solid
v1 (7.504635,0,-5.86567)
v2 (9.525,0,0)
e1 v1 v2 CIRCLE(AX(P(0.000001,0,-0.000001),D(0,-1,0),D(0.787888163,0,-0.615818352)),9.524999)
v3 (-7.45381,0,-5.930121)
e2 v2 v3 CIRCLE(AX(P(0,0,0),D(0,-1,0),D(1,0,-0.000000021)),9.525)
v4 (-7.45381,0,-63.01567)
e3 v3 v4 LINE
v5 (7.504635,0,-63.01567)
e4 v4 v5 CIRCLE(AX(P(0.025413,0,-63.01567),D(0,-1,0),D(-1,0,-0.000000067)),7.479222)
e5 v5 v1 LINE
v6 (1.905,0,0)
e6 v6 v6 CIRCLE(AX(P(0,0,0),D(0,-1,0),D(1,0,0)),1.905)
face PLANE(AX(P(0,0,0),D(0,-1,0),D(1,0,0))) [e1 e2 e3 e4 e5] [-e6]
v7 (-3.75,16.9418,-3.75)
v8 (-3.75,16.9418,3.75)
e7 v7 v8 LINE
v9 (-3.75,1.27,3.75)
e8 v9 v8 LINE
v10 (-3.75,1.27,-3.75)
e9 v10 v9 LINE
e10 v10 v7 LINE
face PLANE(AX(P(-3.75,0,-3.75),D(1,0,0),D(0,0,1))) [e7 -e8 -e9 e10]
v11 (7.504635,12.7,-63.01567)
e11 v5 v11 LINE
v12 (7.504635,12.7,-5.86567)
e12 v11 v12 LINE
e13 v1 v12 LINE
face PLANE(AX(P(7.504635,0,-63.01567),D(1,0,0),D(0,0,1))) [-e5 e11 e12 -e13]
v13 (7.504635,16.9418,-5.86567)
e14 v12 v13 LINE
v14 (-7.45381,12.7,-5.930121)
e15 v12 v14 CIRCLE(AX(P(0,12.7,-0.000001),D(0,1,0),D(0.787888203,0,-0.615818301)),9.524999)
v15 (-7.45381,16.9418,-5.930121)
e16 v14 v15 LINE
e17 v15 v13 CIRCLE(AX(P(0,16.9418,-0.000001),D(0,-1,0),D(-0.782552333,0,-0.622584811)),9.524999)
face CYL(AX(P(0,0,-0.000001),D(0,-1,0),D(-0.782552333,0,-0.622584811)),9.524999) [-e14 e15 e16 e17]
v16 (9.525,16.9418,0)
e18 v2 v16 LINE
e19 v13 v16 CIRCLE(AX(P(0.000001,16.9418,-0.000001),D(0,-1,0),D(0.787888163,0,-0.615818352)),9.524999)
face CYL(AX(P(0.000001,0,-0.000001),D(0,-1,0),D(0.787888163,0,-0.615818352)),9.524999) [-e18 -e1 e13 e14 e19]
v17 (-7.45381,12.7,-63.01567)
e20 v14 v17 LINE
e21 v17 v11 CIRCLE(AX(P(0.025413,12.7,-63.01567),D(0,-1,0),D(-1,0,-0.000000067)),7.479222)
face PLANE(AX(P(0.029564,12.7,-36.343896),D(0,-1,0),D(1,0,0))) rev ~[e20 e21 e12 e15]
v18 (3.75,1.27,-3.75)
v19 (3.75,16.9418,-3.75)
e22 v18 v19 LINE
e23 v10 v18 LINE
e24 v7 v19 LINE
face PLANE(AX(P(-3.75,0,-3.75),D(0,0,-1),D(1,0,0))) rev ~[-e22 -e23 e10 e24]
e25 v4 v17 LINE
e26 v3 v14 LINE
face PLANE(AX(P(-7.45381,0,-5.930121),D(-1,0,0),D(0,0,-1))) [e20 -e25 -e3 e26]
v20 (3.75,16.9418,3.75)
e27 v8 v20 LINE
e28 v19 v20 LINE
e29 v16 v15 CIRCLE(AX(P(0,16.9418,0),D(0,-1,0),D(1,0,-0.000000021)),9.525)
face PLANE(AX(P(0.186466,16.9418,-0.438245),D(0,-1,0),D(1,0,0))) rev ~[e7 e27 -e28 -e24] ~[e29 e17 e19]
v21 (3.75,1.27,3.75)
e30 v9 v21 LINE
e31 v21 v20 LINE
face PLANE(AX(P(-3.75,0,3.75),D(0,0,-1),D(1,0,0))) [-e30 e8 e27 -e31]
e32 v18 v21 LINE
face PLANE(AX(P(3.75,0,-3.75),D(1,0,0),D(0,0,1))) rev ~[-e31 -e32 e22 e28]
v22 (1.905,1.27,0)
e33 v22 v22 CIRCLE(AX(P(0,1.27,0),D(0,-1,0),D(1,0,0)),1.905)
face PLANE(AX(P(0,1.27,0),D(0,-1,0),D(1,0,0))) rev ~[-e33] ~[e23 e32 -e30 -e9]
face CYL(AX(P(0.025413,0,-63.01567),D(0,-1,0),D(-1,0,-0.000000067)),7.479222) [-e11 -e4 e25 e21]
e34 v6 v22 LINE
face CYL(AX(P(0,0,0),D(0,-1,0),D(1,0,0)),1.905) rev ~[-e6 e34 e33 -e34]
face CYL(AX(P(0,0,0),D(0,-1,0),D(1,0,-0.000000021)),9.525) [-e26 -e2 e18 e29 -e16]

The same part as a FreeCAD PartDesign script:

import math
import FreeCAD as App
import Part
import Sketcher
from FreeCAD import Vector
Q = App.Units.Quantity


def add_polygon(sketch, points):
    """Adds a closed chain of lines whose ends are joined by coincident constraints."""
    first, n = sketch.GeometryCount, len(points)
    for a, b in zip(points, points[1:] + points[:1]):
        sketch.addGeometry(Part.LineSegment(App.Vector(*a, 0), App.Vector(*b, 0)), False)
    for i in range(n):
        sketch.addConstraint(Sketcher.Constraint("Coincident", first + i, 2, first + (i + 1) % n, 1))

doc = App.newDocument("Part")
body = doc.addObject("PartDesign::Body", "Body")

# Sketch on XZ plane
sketch1 = doc.addObject("Sketcher::SketchObject", "Sketch")
body.addObject(sketch1)
sketch1.AttachmentSupport = (doc.XZ_Plane, [""])
sketch1.MapMode = "FlatFace"
sketch1.addGeometry(Part.ArcOfCircle(Part.Circle(Vector(0, 0, 0), Vector(0, 0, 1), 10), math.radians(-38), math.radians(0)), False)  # 0
sketch1.addGeometry(Part.ArcOfCircle(Part.Circle(Vector(0, 0, 0), Vector(0, 0, 1), 10), math.radians(0), math.radians(219)), False)  # 1
sketch1.addGeometry(Part.ArcOfCircle(Part.Circle(Vector(0, 0, 0), Vector(0, 0, 1), 10), math.radians(-141), math.radians(-38)), False)  # 2
add_polygon(sketch1, [(4, -4), (-4, -4), (-4, 4), (4, 4)])  # lines 3-6
sketch1.addConstraint([
    Sketcher.Constraint("Tangent", 0, 2, 1, 1),
    Sketcher.Constraint("Tangent", 1, 2, 2, 1),
    Sketcher.Constraint("Tangent", 2, 2, 0, 1),
    Sketcher.Constraint("Horizontal", 3),
    Sketcher.Constraint("Vertical", 4),
    Sketcher.Constraint("Horizontal", 5),
    Sketcher.Constraint("Vertical", 6),
    Sketcher.Constraint("Coincident", 0, 3, -1, 1),
    Sketcher.Constraint("Symmetric", 3, 2, 5, 2, -1, 1),
    Sketcher.Constraint("PointOnObject", 0, 2, -1),
    Sketcher.Constraint("Equal", 5, 4),
    Sketcher.Constraint("Radius", 0, Q("0.375 in")),
    Sketcher.Constraint("DistanceX", 3, 2, 3, 1, 7.5),
    Sketcher.Constraint("DistanceX", 1, 2, -1, 1, 7.45381),
    Sketcher.Constraint("DistanceY", 2, 2, -1, 1, 5.86567),
])
pad1 = doc.addObject("PartDesign::Pad", "Pad")
body.addObject(pad1)
pad1.Profile = sketch1
pad1.Length = Q("0.667 in")
pad1.Reversed = True

# Sketch on XZ plane
sketch2 = doc.addObject("Sketcher::SketchObject", "Sketch001")
body.addObject(sketch2)
sketch2.AttachmentSupport = (doc.XZ_Plane, [""])
sketch2.MapMode = "FlatFace"
sketch2.addGeometry([
    Part.ArcOfCircle(Part.Circle(Vector(0, 0, 0), Vector(0, 0, 1), 10), math.radians(-141), math.radians(-38)),
    Part.LineSegment(Vector(-7, -6, 0), Vector(-7, -63, 0)),
    Part.ArcOfCircle(Part.Circle(Vector(0, -63, 0), Vector(0, 0, 1), 7), math.radians(-180), math.radians(0)),
    Part.LineSegment(Vector(8, -63, 0), Vector(8, -6, 0)),
], False)
sketch2.addConstraint([
    Sketcher.Constraint("Coincident", 0, 1, 1, 1),
    Sketcher.Constraint("Tangent", 1, 2, 2, 1),
    Sketcher.Constraint("Tangent", 2, 2, 3, 1),
    Sketcher.Constraint("Coincident", 3, 2, 0, 2),
    Sketcher.Constraint("Vertical", 1),
    Sketcher.Constraint("Vertical", 3),
    Sketcher.Constraint("Coincident", 0, 3, -1, 1),
    Sketcher.Constraint("Radius", 0, Q("0.375 in")),
    Sketcher.Constraint("DistanceY", 3, 1, 3, 2, Q("2.25 in")),
    Sketcher.Constraint("Radius", 2, 7.479222),
    Sketcher.Constraint("DistanceY", 1, 2, 1, 1, 57.085549),
])
pad2 = doc.addObject("PartDesign::Pad", "Pad001")
body.addObject(pad2)
pad2.Profile = sketch2
pad2.Length = Q("0.5 in")
pad2.Reversed = True

# Sketch on XZ plane
sketch3 = doc.addObject("Sketcher::SketchObject", "Sketch002")
body.addObject(sketch3)
sketch3.AttachmentSupport = (doc.XZ_Plane, [""])
sketch3.MapMode = "FlatFace"
add_polygon(sketch3, [(-3.8, 3.8), (-3.8, -3.8), (3.8, -3.8), (3.8, 3.8)])  # lines 0-3
sketch3.addGeometry(Part.Circle(Vector(0, 0, 0), Vector(0, 0, 1), 1.9), False)  # 4
sketch3.addConstraint([
    Sketcher.Constraint("Vertical", 0),
    Sketcher.Constraint("Horizontal", 1),
    Sketcher.Constraint("Vertical", 2),
    Sketcher.Constraint("Horizontal", 3),
    Sketcher.Constraint("Coincident", 4, 3, -1, 1),
    Sketcher.Constraint("Symmetric", 0, 2, 2, 2, -1, 1),
    Sketcher.Constraint("Equal", 3, 0),
    Sketcher.Constraint("Diameter", 4, Q("0.15 in")),
    Sketcher.Constraint("DistanceX", 1, 1, 1, 2, 7.5),
])
pad3 = doc.addObject("PartDesign::Pad", "Pad002")
body.addObject(pad3)
pad3.Profile = sketch3
pad3.Length = Q("0.05 in")
pad3.Reversed = True

doc.recompute()
